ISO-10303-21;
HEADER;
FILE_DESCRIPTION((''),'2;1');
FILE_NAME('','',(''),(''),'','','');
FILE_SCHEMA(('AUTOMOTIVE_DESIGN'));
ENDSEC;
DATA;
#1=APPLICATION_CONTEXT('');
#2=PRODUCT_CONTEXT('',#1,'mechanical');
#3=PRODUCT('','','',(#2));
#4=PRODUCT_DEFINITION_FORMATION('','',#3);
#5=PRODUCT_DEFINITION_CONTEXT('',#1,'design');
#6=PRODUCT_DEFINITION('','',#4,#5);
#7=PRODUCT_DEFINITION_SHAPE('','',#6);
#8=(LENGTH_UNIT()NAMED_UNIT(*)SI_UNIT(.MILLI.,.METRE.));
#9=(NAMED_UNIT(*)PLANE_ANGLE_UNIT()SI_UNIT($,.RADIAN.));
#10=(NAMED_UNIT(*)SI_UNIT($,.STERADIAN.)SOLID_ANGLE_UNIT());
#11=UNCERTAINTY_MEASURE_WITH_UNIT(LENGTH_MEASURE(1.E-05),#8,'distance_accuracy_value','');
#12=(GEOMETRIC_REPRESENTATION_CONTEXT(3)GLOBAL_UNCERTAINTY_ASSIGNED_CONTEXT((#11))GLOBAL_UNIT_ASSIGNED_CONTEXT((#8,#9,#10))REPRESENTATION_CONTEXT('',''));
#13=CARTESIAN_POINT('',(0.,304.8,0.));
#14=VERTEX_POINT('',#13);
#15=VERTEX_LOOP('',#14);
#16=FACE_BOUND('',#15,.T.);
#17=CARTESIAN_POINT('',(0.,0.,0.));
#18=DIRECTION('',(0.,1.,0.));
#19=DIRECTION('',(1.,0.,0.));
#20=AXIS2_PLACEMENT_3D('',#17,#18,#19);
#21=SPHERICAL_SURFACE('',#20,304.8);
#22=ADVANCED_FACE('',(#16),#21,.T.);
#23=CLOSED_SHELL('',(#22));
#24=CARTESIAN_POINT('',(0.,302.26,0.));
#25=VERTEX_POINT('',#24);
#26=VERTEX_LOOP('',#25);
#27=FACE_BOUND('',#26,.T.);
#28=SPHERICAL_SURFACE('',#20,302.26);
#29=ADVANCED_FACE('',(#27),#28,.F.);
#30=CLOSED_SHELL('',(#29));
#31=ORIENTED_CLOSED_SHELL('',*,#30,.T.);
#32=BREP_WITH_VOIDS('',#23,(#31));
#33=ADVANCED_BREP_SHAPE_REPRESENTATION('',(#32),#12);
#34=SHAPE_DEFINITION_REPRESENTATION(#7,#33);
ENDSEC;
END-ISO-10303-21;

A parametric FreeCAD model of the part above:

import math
import FreeCAD as App
import Part
import Sketcher
from FreeCAD import Vector
Q = App.Units.Quantity

doc = App.newDocument("Part")
body = doc.addObject("PartDesign::Body", "Body")

sketch1 = body.newObject("Sketcher::SketchObject", "Sketch")
sketch1.AttachmentSupport = (doc.getObject("XY_Plane"), [""])
sketch1.MapMode = "FlatFace"
sketch1.addGeometry(Part.ArcOfCircle(Part.Circle(Vector(0, 0, 0), Vector(0, 0, 1), 304.8), math.radians(-90), math.radians(90)), False)
sketch1.addGeometry(Part.LineSegment(Vector(0, 304.8, 0), Vector(0, 302.26, 0)), False)
sketch1.addGeometry(Part.ArcOfCircle(Part.Circle(Vector(0, 0, 0), Vector(0, 0, 1), 302.26), math.radians(-90), math.radians(90)), False)
sketch1.addGeometry(Part.LineSegment(Vector(0, -302.26, 0), Vector(0, -304.8, 0)), False)
sketch1.addConstraint(Sketcher.Constraint("Coincident", 0, 2, 1, 1))
sketch1.addConstraint(Sketcher.Constraint("Coincident", 1, 2, 2, 2))
sketch1.addConstraint(Sketcher.Constraint("Coincident", 2, 1, 3, 1))
sketch1.addConstraint(Sketcher.Constraint("Coincident", 3, 2, 0, 1))
sketch1.addConstraint(Sketcher.Constraint("Vertical", 1))
sketch1.addConstraint(Sketcher.Constraint("Vertical", 3))
sketch1.addConstraint(Sketcher.Constraint("Coincident", 0, 3, -1, 1))
sketch1.addConstraint(Sketcher.Constraint("Coincident", 2, 3, -1, 1))
sketch1.addConstraint(Sketcher.Constraint("PointOnObject", 0, 2, -2))
sketch1.addConstraint(Sketcher.Constraint("PointOnObject", 2, 1, -2))
sketch1.addConstraint(Sketcher.Constraint("Radius", 0, Q("12 in")))
sketch1.addConstraint(Sketcher.Constraint("Radius", 2, Q("11.9 in")))
revolution = body.newObject("PartDesign::Revolution", "Revolution")
revolution.Profile = sketch1
revolution.ReferenceAxis = (sketch1, ["V_Axis"])
revolution.Angle = 360

doc.recompute()
